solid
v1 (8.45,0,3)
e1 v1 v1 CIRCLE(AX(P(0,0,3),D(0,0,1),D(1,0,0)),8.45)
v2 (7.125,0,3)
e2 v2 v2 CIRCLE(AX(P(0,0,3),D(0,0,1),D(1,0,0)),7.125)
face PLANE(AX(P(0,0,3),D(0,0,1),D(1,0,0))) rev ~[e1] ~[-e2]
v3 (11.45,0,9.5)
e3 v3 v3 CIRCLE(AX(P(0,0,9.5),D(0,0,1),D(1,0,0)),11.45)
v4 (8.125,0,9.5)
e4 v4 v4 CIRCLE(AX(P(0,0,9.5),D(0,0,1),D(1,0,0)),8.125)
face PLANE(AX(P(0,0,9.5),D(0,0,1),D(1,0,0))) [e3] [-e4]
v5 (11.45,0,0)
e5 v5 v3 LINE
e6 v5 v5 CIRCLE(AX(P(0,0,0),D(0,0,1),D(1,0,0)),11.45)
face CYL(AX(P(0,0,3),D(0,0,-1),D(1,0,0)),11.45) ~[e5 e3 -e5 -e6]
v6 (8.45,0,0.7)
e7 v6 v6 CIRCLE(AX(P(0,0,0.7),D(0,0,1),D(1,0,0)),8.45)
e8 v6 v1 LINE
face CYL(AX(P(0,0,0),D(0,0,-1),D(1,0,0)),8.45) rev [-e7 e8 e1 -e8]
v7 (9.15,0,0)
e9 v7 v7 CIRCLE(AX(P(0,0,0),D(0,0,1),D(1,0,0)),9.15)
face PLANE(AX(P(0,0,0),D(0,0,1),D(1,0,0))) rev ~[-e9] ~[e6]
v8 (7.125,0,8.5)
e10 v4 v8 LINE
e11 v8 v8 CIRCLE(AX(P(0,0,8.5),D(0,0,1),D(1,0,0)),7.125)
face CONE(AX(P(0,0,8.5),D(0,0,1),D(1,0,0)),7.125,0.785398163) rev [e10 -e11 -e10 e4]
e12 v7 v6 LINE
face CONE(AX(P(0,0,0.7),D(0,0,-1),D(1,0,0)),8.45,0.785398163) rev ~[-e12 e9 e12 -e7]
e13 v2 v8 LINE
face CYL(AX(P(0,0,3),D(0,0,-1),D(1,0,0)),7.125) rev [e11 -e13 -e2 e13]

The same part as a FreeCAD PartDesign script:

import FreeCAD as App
import Part
import Sketcher

V = App.Vector


def edges_at(feature, points):
    """Names of the edges that pass closest to the given points."""
    edges = feature.Shape.Edges
    near = lambda p: min(range(len(edges)), key=lambda i: edges[i].distToShape(Part.Vertex(*p))[0])
    return sorted({f"Edge{near(p) + 1}" for p in points})

doc = App.newDocument("Part")
body = doc.addObject("PartDesign::Body", "Body")

sketch1 = doc.addObject("Sketcher::SketchObject", "Sketch")
body.addObject(sketch1)
sketch1.AttachmentSupport = (doc.XY_Plane, [""])
sketch1.MapMode = "FlatFace"
sketch1.addGeometry(Part.Circle(V(0, 0, 0), V(0, 0, 1), 11), False)
sketch1.addGeometry(Part.Circle(V(0, 0, 0), V(0, 0, 1), 8), False)
sketch1.addConstraint(Sketcher.Constraint("Coincident", 0, 3, -1, 1))
sketch1.addConstraint(Sketcher.Constraint("Coincident", 1, 3, -1, 1))
sketch1.addConstraint(Sketcher.Constraint("Diameter", 0, 22.9))
sketch1.addConstraint(Sketcher.Constraint("Diameter", 1, 16.9))
pad1 = doc.addObject("PartDesign::Pad", "Pad")
body.addObject(pad1)
pad1.Profile = sketch1
pad1.Length = 3

sketch2 = doc.addObject("Sketcher::SketchObject", "Sketch001")
body.addObject(sketch2)
sketch2.AttachmentSupport = (doc.XY_Plane, [""])
sketch2.MapMode = "FlatFace"
sketch2.AttachmentOffset = App.Placement(V(0, 0, 3), App.Rotation())
sketch2.addGeometry(Part.Circle(V(0, 0, 0), V(0, 0, 1), 11), False)
sketch2.addGeometry(Part.Circle(V(0, 0, 0), V(0, 0, 1), 7), False)
sketch2.addConstraint(Sketcher.Constraint("Coincident", 0, 3, -1, 1))
sketch2.addConstraint(Sketcher.Constraint("Coincident", 1, 3, -1, 1))
sketch2.addConstraint(Sketcher.Constraint("Diameter", 0, 22.9))
sketch2.addConstraint(Sketcher.Constraint("Diameter", 1, 14.25))
pad2 = doc.addObject("PartDesign::Pad", "Pad001")
body.addObject(pad2)
pad2.Profile = sketch2
pad2.Length = 6.5
doc.recompute()

chamfer = doc.addObject("PartDesign::Chamfer", "Chamfer")
body.addObject(chamfer)
chamfer.Base = (pad2, edges_at(pad2, [(-8.45, 0, 0)]))
chamfer.Size = 0.7
doc.recompute()

chamfer2 = doc.addObject("PartDesign::Chamfer", "Chamfer001")
body.addObject(chamfer2)
chamfer2.Base = (chamfer, edges_at(chamfer, [(-7.125, 0, 9.5)]))
chamfer2.Size = 1

doc.recompute()
